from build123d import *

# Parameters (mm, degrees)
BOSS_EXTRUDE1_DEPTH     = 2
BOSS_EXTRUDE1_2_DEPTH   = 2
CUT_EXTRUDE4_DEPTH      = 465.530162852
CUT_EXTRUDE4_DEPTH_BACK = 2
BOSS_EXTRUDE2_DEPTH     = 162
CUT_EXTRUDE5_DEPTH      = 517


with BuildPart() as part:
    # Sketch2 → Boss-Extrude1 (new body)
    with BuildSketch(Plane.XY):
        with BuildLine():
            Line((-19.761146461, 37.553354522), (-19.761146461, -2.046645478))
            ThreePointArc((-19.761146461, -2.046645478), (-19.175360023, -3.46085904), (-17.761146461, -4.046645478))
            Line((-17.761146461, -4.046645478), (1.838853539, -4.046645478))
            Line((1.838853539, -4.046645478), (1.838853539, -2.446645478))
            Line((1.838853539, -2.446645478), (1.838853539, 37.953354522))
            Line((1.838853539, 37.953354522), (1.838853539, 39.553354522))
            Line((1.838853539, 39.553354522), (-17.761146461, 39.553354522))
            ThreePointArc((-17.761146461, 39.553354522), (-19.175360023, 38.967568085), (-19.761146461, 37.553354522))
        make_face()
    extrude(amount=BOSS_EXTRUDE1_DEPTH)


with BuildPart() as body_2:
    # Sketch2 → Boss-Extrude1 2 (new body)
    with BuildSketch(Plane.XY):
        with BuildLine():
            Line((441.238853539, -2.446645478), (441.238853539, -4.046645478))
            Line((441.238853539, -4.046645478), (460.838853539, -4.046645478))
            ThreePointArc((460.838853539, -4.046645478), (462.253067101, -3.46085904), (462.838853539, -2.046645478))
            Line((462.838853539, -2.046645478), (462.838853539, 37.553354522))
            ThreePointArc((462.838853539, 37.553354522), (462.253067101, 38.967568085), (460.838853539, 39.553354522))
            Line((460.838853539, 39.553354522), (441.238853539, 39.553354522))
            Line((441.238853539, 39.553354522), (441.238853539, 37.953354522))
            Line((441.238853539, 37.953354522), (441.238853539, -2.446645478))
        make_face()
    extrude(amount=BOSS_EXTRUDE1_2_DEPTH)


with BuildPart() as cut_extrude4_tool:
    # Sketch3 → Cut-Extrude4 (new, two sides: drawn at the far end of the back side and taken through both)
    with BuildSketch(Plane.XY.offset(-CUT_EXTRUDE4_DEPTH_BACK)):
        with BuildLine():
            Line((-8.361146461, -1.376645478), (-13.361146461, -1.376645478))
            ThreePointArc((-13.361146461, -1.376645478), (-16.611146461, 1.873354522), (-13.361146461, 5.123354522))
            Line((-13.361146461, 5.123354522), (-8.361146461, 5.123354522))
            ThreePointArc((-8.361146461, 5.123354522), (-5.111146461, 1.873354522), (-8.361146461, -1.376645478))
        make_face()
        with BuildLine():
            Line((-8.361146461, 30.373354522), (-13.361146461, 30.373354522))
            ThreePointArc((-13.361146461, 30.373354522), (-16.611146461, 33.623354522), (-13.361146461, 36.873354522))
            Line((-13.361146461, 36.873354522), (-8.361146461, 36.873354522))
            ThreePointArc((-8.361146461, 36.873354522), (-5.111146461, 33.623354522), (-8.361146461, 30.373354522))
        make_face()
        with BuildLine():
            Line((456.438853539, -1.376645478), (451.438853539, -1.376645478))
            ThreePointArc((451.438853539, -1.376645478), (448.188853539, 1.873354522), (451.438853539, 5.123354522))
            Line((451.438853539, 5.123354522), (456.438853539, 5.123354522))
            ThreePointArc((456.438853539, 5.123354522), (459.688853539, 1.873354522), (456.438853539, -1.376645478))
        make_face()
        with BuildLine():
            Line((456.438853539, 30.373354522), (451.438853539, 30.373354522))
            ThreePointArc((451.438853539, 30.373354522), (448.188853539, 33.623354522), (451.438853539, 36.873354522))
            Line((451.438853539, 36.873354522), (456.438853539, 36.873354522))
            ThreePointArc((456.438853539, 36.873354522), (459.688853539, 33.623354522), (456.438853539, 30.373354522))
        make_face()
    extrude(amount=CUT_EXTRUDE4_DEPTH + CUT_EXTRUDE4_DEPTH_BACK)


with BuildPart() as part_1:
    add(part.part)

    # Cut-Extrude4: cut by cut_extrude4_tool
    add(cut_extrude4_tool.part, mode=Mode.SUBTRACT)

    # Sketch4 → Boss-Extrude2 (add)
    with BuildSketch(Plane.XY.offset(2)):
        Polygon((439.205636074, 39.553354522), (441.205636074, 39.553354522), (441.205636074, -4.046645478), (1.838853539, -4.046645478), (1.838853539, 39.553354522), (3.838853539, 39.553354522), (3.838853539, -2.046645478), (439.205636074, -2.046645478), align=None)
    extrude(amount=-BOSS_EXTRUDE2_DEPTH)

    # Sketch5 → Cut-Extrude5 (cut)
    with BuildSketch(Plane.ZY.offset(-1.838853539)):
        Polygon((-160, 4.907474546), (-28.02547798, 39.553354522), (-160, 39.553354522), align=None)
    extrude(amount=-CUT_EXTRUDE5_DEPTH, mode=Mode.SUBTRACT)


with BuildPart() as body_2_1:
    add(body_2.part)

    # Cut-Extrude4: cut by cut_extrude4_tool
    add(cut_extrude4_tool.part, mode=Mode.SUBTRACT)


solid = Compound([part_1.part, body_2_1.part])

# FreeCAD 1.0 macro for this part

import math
import FreeCAD as App
import Part
import Sketcher
Q = App.Units.Quantity

doc = App.newDocument("Part")
body = doc.addObject("PartDesign::Body", "Body")

sketch1 = body.newObject("Sketcher::SketchObject", "Sketch")
sketch1.AttachmentSupport = (doc.getObject("XY_Plane"), [""])
sketch1.MapMode = "FlatFace"
sketch1.addGeometry(Part.LineSegment(App.Vector(-19.8, 37.6, 0), App.Vector(-19.8, -2, 0)), False)
sketch1.addGeometry(Part.ArcOfCircle(Part.Circle(App.Vector(-17.8, -2, 0), App.Vector(0, 0, 1), 2), math.radians(-180), math.radians(-90)), False)
sketch1.addGeometry(Part.LineSegment(App.Vector(-17.8, -4, 0), App.Vector(1.8, -4, 0)), False)
sketch1.addGeometry(Part.LineSegment(App.Vector(1.8, -4, 0), App.Vector(1.8, 39.6, 0)), False)
sketch1.addGeometry(Part.LineSegment(App.Vector(1.8, 39.6, 0), App.Vector(-17.8, 39.6, 0)), False)
sketch1.addGeometry(Part.ArcOfCircle(Part.Circle(App.Vector(-17.8, 37.6, 0), App.Vector(0, 0, 1), 2), math.radians(90), math.radians(180)), False)
sketch1.addConstraint(Sketcher.Constraint("Tangent", 0, 2, 1, 1))
sketch1.addConstraint(Sketcher.Constraint("Tangent", 1, 2, 2, 1))
sketch1.addConstraint(Sketcher.Constraint("Coincident", 2, 2, 3, 1))
sketch1.addConstraint(Sketcher.Constraint("Coincident", 3, 2, 4, 1))
sketch1.addConstraint(Sketcher.Constraint("Tangent", 4, 2, 5, 1))
sketch1.addConstraint(Sketcher.Constraint("Tangent", 5, 2, 0, 1))
sketch1.addConstraint(Sketcher.Constraint("Vertical", 0))
sketch1.addConstraint(Sketcher.Constraint("Horizontal", 2))
sketch1.addConstraint(Sketcher.Constraint("Vertical", 3))
sketch1.addConstraint(Sketcher.Constraint("Horizontal", 4))
sketch1.addConstraint(Sketcher.Constraint("Equal", 1, 5))
sketch1.addConstraint(Sketcher.Constraint("Radius", 1, Q("2 mm")))
sketch1.addConstraint(Sketcher.Constraint("DistanceX", 2, 1, 2, 2, Q("19.6 mm")))
sketch1.addConstraint(Sketcher.Constraint("DistanceY", 0, 2, 0, 1, Q("39.6 mm")))
sketch1.addConstraint(Sketcher.Constraint("DistanceX", 1, 3, -1, 1, Q("17.761146 mm")))
sketch1.addConstraint(Sketcher.Constraint("DistanceY", 1, 3, -1, 1, Q("2.046645 mm")))
pad1 = body.newObject("PartDesign::Pad", "Pad")
pad1.Profile = sketch1
pad1.Length = 2
body2 = doc.addObject("PartDesign::Body", "Body001")

sketch2 = body2.newObject("Sketcher::SketchObject", "Sketch001")
sketch2.AttachmentSupport = (doc.getObject("XY_Plane001"), [""])
sketch2.MapMode = "FlatFace"
sketch2.addGeometry(Part.LineSegment(App.Vector(441.2, -4, 0), App.Vector(460.8, -4, 0)), False)
sketch2.addGeometry(Part.ArcOfCircle(Part.Circle(App.Vector(460.8, -2, 0), App.Vector(0, 0, 1), 2), math.radians(-90), math.radians(0)), False)
sketch2.addGeometry(Part.LineSegment(App.Vector(462.8, -2, 0), App.Vector(462.8, 37.6, 0)), False)
sketch2.addGeometry(Part.ArcOfCircle(Part.Circle(App.Vector(460.8, 37.6, 0), App.Vector(0, 0, 1), 2), math.radians(0), math.radians(90)), False)
sketch2.addGeometry(Part.LineSegment(App.Vector(460.8, 39.6, 0), App.Vector(441.2, 39.6, 0)), False)
sketch2.addGeometry(Part.LineSegment(App.Vector(441.2, 39.6, 0), App.Vector(441.2, -4, 0)), False)
sketch2.addConstraint(Sketcher.Constraint("Tangent", 0, 2, 1, 1))
sketch2.addConstraint(Sketcher.Constraint("Tangent", 1, 2, 2, 1))
sketch2.addConstraint(Sketcher.Constraint("Tangent", 2, 2, 3, 1))
sketch2.addConstraint(Sketcher.Constraint("Tangent", 3, 2, 4, 1))
sketch2.addConstraint(Sketcher.Constraint("Coincident", 4, 2, 5, 1))
sketch2.addConstraint(Sketcher.Constraint("Coincident", 5, 2, 0, 1))
sketch2.addConstraint(Sketcher.Constraint("Horizontal", 0))
sketch2.addConstraint(Sketcher.Constraint("Vertical", 2))
sketch2.addConstraint(Sketcher.Constraint("Horizontal", 4))
sketch2.addConstraint(Sketcher.Constraint("Vertical", 5))
sketch2.addConstraint(Sketcher.Constraint("Equal", 1, 3))
sketch2.addConstraint(Sketcher.Constraint("Radius", 1, Q("2 mm")))
sketch2.addConstraint(Sketcher.Constraint("DistanceX", 0, 1, 0, 2, Q("19.6 mm")))
sketch2.addConstraint(Sketcher.Constraint("DistanceY", 2, 1, 2, 2, Q("39.6 mm")))
sketch2.addConstraint(Sketcher.Constraint("DistanceX", -1, 1, 1, 3, Q("460.838854 mm")))
sketch2.addConstraint(Sketcher.Constraint("DistanceY", 1, 3, -1, 1, Q("2.046645 mm")))
pad2 = body2.newObject("PartDesign::Pad", "Pad001")
pad2.Profile = sketch2
pad2.Length = 2
body3 = doc.addObject("PartDesign::Body", "Body002")
body3.AllowCompound = True

sketch3 = body3.newObject("Sketcher::SketchObject", "Sketch002")
sketch3.AttachmentSupport = (doc.getObject("XY_Plane002"), [""])
sketch3.MapMode = "FlatFace"
sketch3.addGeometry(Part.LineSegment(App.Vector(-13.4, -1.4, 0), App.Vector(-8.4, -1.4, 0)), False)
sketch3.addGeometry(Part.ArcOfCircle(Part.Circle(App.Vector(-8.4, 1.9, 0), App.Vector(0, 0, 1), 3.2), math.radians(-90), math.radians(90)), False)
sketch3.addGeometry(Part.LineSegment(App.Vector(-8.4, 5.1, 0), App.Vector(-13.4, 5.1, 0)), False)
sketch3.addGeometry(Part.ArcOfCircle(Part.Circle(App.Vector(-13.4, 1.9, 0), App.Vector(0, 0, 1), 3.2), math.radians(90), math.radians(270)), False)
sketch3.addGeometry(Part.LineSegment(App.Vector(-13.4, 30.4, 0), App.Vector(-8.4, 30.4, 0)), False)
sketch3.addGeometry(Part.ArcOfCircle(Part.Circle(App.Vector(-8.4, 33.6, 0), App.Vector(0, 0, 1), 3.2), math.radians(-90), math.radians(90)), False)
sketch3.addGeometry(Part.LineSegment(App.Vector(-8.4, 36.9, 0), App.Vector(-13.4, 36.9, 0)), False)
sketch3.addGeometry(Part.ArcOfCircle(Part.Circle(App.Vector(-13.4, 33.6, 0), App.Vector(0, 0, 1), 3.2), math.radians(90), math.radians(270)), False)
sketch3.addGeometry(Part.LineSegment(App.Vector(451.4, -1.4, 0), App.Vector(456.4, -1.4, 0)), False)
sketch3.addGeometry(Part.ArcOfCircle(Part.Circle(App.Vector(456.4, 1.9, 0), App.Vector(0, 0, 1), 3.2), math.radians(-90), math.radians(90)), False)
sketch3.addGeometry(Part.LineSegment(App.Vector(456.4, 5.1, 0), App.Vector(451.4, 5.1, 0)), False)
sketch3.addGeometry(Part.ArcOfCircle(Part.Circle(App.Vector(451.4, 1.9, 0), App.Vector(0, 0, 1), 3.2), math.radians(90), math.radians(270)), False)
sketch3.addGeometry(Part.LineSegment(App.Vector(451.4, 30.4, 0), App.Vector(456.4, 30.4, 0)), False)
sketch3.addGeometry(Part.ArcOfCircle(Part.Circle(App.Vector(456.4, 33.6, 0), App.Vector(0, 0, 1), 3.2), math.radians(-90), math.radians(90)), False)
sketch3.addGeometry(Part.LineSegment(App.Vector(456.4, 36.9, 0), App.Vector(451.4, 36.9, 0)), False)
sketch3.addGeometry(Part.ArcOfCircle(Part.Circle(App.Vector(451.4, 33.6, 0), App.Vector(0, 0, 1), 3.2), math.radians(90), math.radians(270)), False)
sketch3.addConstraint(Sketcher.Constraint("Tangent", 0, 2, 1, 1))
sketch3.addConstraint(Sketcher.Constraint("Tangent", 1, 2, 2, 1))
sketch3.addConstraint(Sketcher.Constraint("Tangent", 2, 2, 3, 1))
sketch3.addConstraint(Sketcher.Constraint("Tangent", 3, 2, 0, 1))
sketch3.addConstraint(Sketcher.Constraint("Tangent", 4, 2, 5, 1))
sketch3.addConstraint(Sketcher.Constraint("Tangent", 5, 2, 6, 1))
sketch3.addConstraint(Sketcher.Constraint("Tangent", 6, 2, 7, 1))
sketch3.addConstraint(Sketcher.Constraint("Tangent", 7, 2, 4, 1))
sketch3.addConstraint(Sketcher.Constraint("Tangent", 8, 2, 9, 1))
sketch3.addConstraint(Sketcher.Constraint("Tangent", 9, 2, 10, 1))
sketch3.addConstraint(Sketcher.Constraint("Tangent", 10, 2, 11, 1))
sketch3.addConstraint(Sketcher.Constraint("Tangent", 11, 2, 8, 1))
sketch3.addConstraint(Sketcher.Constraint("Tangent", 12, 2, 13, 1))
sketch3.addConstraint(Sketcher.Constraint("Tangent", 13, 2, 14, 1))
sketch3.addConstraint(Sketcher.Constraint("Tangent", 14, 2, 15, 1))
sketch3.addConstraint(Sketcher.Constraint("Tangent", 15, 2, 12, 1))
sketch3.addConstraint(Sketcher.Constraint("Horizontal", 0))
sketch3.addConstraint(Sketcher.Constraint("Horizontal", 2))
sketch3.addConstraint(Sketcher.Constraint("Horizontal", 4))
sketch3.addConstraint(Sketcher.Constraint("Horizontal", 6))
sketch3.addConstraint(Sketcher.Constraint("Horizontal", 8))
sketch3.addConstraint(Sketcher.Constraint("Horizontal", 10))
sketch3.addConstraint(Sketcher.Constraint("Horizontal", 12))
sketch3.addConstraint(Sketcher.Constraint("Horizontal", 14))
sketch3.addConstraint(Sketcher.Constraint("Equal", 3, 5))
sketch3.addConstraint(Sketcher.Constraint("Equal", 7, 9))
sketch3.addConstraint(Sketcher.Constraint("Equal", 11, 13))
sketch3.addConstraint(Sketcher.Constraint("Horizontal", 3, 3, 9, 3))
sketch3.addConstraint(Sketcher.Constraint("Horizontal", 7, 3, 13, 3))
sketch3.addConstraint(Sketcher.Constraint("Vertical", 1, 3, 5, 3))
sketch3.addConstraint(Sketcher.Constraint("Vertical", 3, 3, 7, 3))
sketch3.addConstraint(Sketcher.Constraint("Vertical", 9, 3, 13, 3))
sketch3.addConstraint(Sketcher.Constraint("Vertical", 11, 3, 15, 3))
sketch3.addConstraint(Sketcher.Constraint("Equal", 6, 8))
sketch3.addConstraint(Sketcher.Constraint("DistanceX", 0, 1, 0, 2, Q("5 mm")))
sketch3.addConstraint(Sketcher.Constraint("Radius", 1, Q("3.25 mm")))
sketch3.addConstraint(Sketcher.Constraint("DistanceY", 0, 2, 5, 3, Q("35 mm")))
sketch3.addConstraint(Sketcher.Constraint("DistanceX", 1, 3, 9, 3, Q("464.8 mm")))
sketch3.addConstraint(Sketcher.Constraint("DistanceX", 1, 3, -1, 1, Q("8.361146 mm")))
sketch3.addConstraint(Sketcher.Constraint("DistanceY", -1, 1, 1, 3, Q("1.873355 mm")))
pad3 = body3.newObject("PartDesign::Pad", "Pad002")
pad3.Profile = sketch3
pad3.Type = "TwoLengths"
pad3.Length = 465.530163
pad3.Length2 = 2
doc.recompute()

body4 = doc.addObject("PartDesign::Body", "Body003")
body4.BaseFeature = body3
boolean = body.newObject("PartDesign::Boolean", "Boolean")
boolean.Type = "Cut"
boolean.addObjects([body4])
doc.recompute()

sketch4 = body.newObject("Sketcher::SketchObject", "Sketch003")
sketch4.AttachmentSupport = (doc.getObject("XY_Plane"), [""])
sketch4.MapMode = "FlatFace"
sketch4.AttachmentOffset = App.Placement(App.Vector(0, 0, 2), App.Rotation())
sketch4.addGeometry(Part.LineSegment(App.Vector(441.2, 39.6, 0), App.Vector(439.2, 39.6, 0)), False)
sketch4.addGeometry(Part.LineSegment(App.Vector(439.2, 39.6, 0), App.Vector(439.2, -2, 0)), False)
sketch4.addGeometry(Part.LineSegment(App.Vector(439.2, -2, 0), App.Vector(3.8, -2, 0)), False)
sketch4.addGeometry(Part.LineSegment(App.Vector(3.8, -2, 0), App.Vector(3.8, 39.6, 0)), False)
sketch4.addGeometry(Part.LineSegment(App.Vector(3.8, 39.6, 0), App.Vector(1.8, 39.6, 0)), False)
sketch4.addGeometry(Part.LineSegment(App.Vector(1.8, 39.6, 0), App.Vector(1.8, -4, 0)), False)
sketch4.addGeometry(Part.LineSegment(App.Vector(1.8, -4, 0), App.Vector(441.2, -4, 0)), False)
sketch4.addGeometry(Part.LineSegment(App.Vector(441.2, -4, 0), App.Vector(441.2, 39.6, 0)), False)
sketch4.addConstraint(Sketcher.Constraint("Coincident", 0, 2, 1, 1))
sketch4.addConstraint(Sketcher.Constraint("Coincident", 1, 2, 2, 1))
sketch4.addConstraint(Sketcher.Constraint("Coincident", 2, 2, 3, 1))
sketch4.addConstraint(Sketcher.Constraint("Coincident", 3, 2, 4, 1))
sketch4.addConstraint(Sketcher.Constraint("Coincident", 4, 2, 5, 1))
sketch4.addConstraint(Sketcher.Constraint("Coincident", 5, 2, 6, 1))
sketch4.addConstraint(Sketcher.Constraint("Coincident", 6, 2, 7, 1))
sketch4.addConstraint(Sketcher.Constraint("Coincident", 7, 2, 0, 1))
sketch4.addConstraint(Sketcher.Constraint("Horizontal", 0))
sketch4.addConstraint(Sketcher.Constraint("Vertical", 1))
sketch4.addConstraint(Sketcher.Constraint("Horizontal", 2))
sketch4.addConstraint(Sketcher.Constraint("Vertical", 3))
sketch4.addConstraint(Sketcher.Constraint("Horizontal", 4))
sketch4.addConstraint(Sketcher.Constraint("Vertical", 5))
sketch4.addConstraint(Sketcher.Constraint("Horizontal", 6))
sketch4.addConstraint(Sketcher.Constraint("Vertical", 7))
sketch4.addConstraint(Sketcher.Constraint("Horizontal", 0, 2, 3, 2))
sketch4.addConstraint(Sketcher.Constraint("Equal", 0, 4))
sketch4.addConstraint(Sketcher.Constraint("DistanceX", 0, 2, 0, 1, Q("2 mm")))
sketch4.addConstraint(Sketcher.Constraint("DistanceY", 1, 2, 1, 1, Q("41.6 mm")))
sketch4.addConstraint(Sketcher.Constraint("DistanceY", 5, 2, 5, 1, Q("43.6 mm")))
sketch4.addConstraint(Sketcher.Constraint("DistanceX", 2, 2, 2, 1, Q("435.366783 mm")))
sketch4.addConstraint(Sketcher.Constraint("DistanceX", -1, 1, 0, 2, Q("439.205636 mm")))
sketch4.addConstraint(Sketcher.Constraint("DistanceY", -1, 1, 0, 2, Q("39.553355 mm")))
pad4 = body.newObject("PartDesign::Pad", "Pad003")
pad4.Profile = sketch4
pad4.Length = 162
pad4.Reversed = True

sketch5 = body.newObject("Sketcher::SketchObject", "Sketch004")
sketch5.AttachmentSupport = (doc.getObject("YZ_Plane"), [""])
sketch5.MapMode = "FlatFace"
sketch5.AttachmentOffset = App.Placement(App.Vector(0, 0, 1.838854), App.Rotation())
sketch5.addGeometry(Part.LineSegment(App.Vector(5, -160, 0), App.Vector(40, -28, 0)), False)
sketch5.addGeometry(Part.LineSegment(App.Vector(40, -28, 0), App.Vector(40, -160, 0)), False)
sketch5.addGeometry(Part.LineSegment(App.Vector(40, -160, 0), App.Vector(5, -160, 0)), False)
sketch5.addConstraint(Sketcher.Constraint("Coincident", 0, 2, 1, 1))
sketch5.addConstraint(Sketcher.Constraint("Coincident", 1, 2, 2, 1))
sketch5.addConstraint(Sketcher.Constraint("Coincident", 2, 2, 0, 1))
sketch5.addConstraint(Sketcher.Constraint("Vertical", 1))
sketch5.addConstraint(Sketcher.Constraint("Horizontal", 2))
sketch5.addConstraint(Sketcher.Constraint("DistanceY", 1, 2, -1, 1, Q("160 mm")))
sketch5.addConstraint(Sketcher.Constraint("DistanceX", 2, 2, 2, 1, Q("34.64588 mm")))
sketch5.addConstraint(Sketcher.Constraint("Distance", 0, Q("136.446368 mm")))
sketch5.addConstraint(Sketcher.Constraint("DistanceX", -1, 1, 0, 2, Q("39.553355 mm")))
pocket1 = body.newObject("PartDesign::Pocket", "Pocket")
pocket1.Profile = sketch5
pocket1.Length = 517
pocket1.Reversed = True
doc.recompute()

boolean2 = body2.newObject("PartDesign::Boolean", "Boolean001")
boolean2.Type = "Cut"
boolean2.addObjects([body3])

doc.recompute()
